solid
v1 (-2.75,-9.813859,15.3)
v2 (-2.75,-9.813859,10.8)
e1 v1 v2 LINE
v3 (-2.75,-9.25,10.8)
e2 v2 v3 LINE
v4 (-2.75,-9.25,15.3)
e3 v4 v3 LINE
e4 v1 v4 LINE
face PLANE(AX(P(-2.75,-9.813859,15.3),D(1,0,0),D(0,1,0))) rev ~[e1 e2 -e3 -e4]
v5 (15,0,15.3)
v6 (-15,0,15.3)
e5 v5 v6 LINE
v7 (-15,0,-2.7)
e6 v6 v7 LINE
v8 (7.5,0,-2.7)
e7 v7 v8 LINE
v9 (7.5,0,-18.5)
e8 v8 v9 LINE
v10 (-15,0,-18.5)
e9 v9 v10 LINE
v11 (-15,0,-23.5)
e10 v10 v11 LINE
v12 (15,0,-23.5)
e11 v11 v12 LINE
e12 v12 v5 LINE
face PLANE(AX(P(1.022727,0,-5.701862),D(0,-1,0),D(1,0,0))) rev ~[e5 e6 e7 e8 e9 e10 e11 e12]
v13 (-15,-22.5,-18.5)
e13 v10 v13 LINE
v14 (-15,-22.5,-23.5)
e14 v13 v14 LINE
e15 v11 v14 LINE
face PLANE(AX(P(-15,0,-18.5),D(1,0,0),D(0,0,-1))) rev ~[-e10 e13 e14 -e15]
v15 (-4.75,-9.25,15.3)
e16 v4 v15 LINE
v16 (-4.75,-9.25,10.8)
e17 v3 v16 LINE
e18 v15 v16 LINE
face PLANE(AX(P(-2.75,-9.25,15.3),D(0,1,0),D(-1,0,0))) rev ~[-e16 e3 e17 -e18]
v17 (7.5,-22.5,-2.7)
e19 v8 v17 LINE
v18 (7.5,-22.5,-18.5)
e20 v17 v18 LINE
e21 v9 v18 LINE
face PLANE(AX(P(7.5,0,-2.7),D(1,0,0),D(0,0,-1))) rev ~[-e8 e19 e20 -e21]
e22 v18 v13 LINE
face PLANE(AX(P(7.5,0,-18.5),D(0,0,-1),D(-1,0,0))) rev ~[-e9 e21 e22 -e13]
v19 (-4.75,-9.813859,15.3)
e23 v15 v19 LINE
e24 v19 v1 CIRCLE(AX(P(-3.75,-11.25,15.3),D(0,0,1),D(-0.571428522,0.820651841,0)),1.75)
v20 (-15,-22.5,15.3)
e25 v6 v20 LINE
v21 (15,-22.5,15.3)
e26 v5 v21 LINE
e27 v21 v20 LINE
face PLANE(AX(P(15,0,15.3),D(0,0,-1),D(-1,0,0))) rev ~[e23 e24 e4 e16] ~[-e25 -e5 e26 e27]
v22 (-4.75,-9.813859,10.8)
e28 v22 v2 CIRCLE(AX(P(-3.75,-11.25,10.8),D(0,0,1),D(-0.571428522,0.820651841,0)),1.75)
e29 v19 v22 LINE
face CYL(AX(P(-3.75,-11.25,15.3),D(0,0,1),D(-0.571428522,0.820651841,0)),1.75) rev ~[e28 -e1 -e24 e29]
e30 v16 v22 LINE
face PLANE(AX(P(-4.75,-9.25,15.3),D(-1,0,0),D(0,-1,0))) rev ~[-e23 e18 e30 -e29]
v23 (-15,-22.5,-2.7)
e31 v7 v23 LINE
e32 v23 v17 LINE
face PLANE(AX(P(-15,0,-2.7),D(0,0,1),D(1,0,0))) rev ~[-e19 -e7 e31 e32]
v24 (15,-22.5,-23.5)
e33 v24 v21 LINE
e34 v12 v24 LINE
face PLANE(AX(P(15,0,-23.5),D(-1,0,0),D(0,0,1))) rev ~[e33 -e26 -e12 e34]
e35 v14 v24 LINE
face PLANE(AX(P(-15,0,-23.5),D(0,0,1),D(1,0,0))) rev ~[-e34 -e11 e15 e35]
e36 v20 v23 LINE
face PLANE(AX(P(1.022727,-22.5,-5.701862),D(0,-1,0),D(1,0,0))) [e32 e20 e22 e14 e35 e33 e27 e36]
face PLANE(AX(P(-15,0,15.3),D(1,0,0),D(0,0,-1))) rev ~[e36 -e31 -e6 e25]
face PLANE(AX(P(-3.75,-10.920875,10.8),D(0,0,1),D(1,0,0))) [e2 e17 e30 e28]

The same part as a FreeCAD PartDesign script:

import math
import FreeCAD as App
import Part
import Sketcher

V = App.Vector

doc = App.newDocument("Part")
body = doc.addObject("PartDesign::Body", "Body")

sketch1 = body.newObject("Sketcher::SketchObject", "Sketch")
sketch1.AttachmentSupport = (doc.getObject("XZ_Plane"), [""])
sketch1.MapMode = "FlatFace"
sketch1.addGeometry([
    Part.LineSegment(V(15, 15, 0), V(-15, 15, 0)),
    Part.LineSegment(V(-15, 15, 0), V(-15, -3, 0)),
    Part.LineSegment(V(-15, -3, 0), V(8, -3, 0)),
    Part.LineSegment(V(8, -3, 0), V(8, -18, 0)),
    Part.LineSegment(V(8, -18, 0), V(-15, -18, 0)),
    Part.LineSegment(V(-15, -18, 0), V(-15, -24, 0)),
    Part.LineSegment(V(-15, -24, 0), V(15, -24, 0)),
    Part.LineSegment(V(15, -24, 0), V(15, 15, 0)),
], False)
sketch1.addConstraint([
    Sketcher.Constraint("Coincident", 0, 2, 1, 1),
    Sketcher.Constraint("Coincident", 1, 2, 2, 1),
    Sketcher.Constraint("Coincident", 2, 2, 3, 1),
    Sketcher.Constraint("Coincident", 3, 2, 4, 1),
    Sketcher.Constraint("Coincident", 4, 2, 5, 1),
    Sketcher.Constraint("Coincident", 5, 2, 6, 1),
    Sketcher.Constraint("Coincident", 6, 2, 7, 1),
    Sketcher.Constraint("Coincident", 7, 2, 0, 1),
    Sketcher.Constraint("Horizontal", 0),
    Sketcher.Constraint("Vertical", 1),
    Sketcher.Constraint("Horizontal", 2),
    Sketcher.Constraint("Vertical", 3),
    Sketcher.Constraint("Horizontal", 4),
    Sketcher.Constraint("Vertical", 5),
    Sketcher.Constraint("Horizontal", 6),
    Sketcher.Constraint("Vertical", 7),
    Sketcher.Constraint("Vertical", 1, 2, 4, 2),
    Sketcher.Constraint("DistanceX", 0, 2, 0, 1, 30.0),
    Sketcher.Constraint("DistanceY", 1, 2, 1, 1, 18.0),
    Sketcher.Constraint("DistanceY", 5, 2, 5, 1, 5.0),
    Sketcher.Constraint("DistanceX", 2, 1, 2, 2, 22.5),
    Sketcher.Constraint("DistanceY", 3, 2, 3, 1, 15.8),
    Sketcher.Constraint("DistanceX", 0, 2, -1, 1, 15.0),
    Sketcher.Constraint("DistanceY", -1, 1, 0, 2, 15.3),
])
pad1 = body.newObject("PartDesign::Pad", "Pad")
pad1.Profile = sketch1
pad1.Length = 22.5

sketch2 = body.newObject("Sketcher::SketchObject", "Sketch001")
sketch2.AttachmentSupport = (doc.getObject("XY_Plane"), [""])
sketch2.MapMode = "FlatFace"
sketch2.AttachmentOffset = App.Placement(V(0, 0, 15.3), App.Rotation())
sketch2.addGeometry([
    Part.LineSegment(V(-4.8, -9.2, 0), V(-4.8, -9.8, 0)),
    Part.ArcOfCircle(Part.Circle(V(-3.8, -11.2, 0), V(0, 0, 1), 1.8), math.radians(125), math.radians(415)),
    Part.LineSegment(V(-2.8, -9.8, 0), V(-2.8, -9.2, 0)),
    Part.LineSegment(V(-2.8, -9.2, 0), V(-4.8, -9.2, 0)),
], False)
sketch2.addConstraint([
    Sketcher.Constraint("Coincident", 0, 2, 1, 1),
    Sketcher.Constraint("Coincident", 1, 2, 2, 1),
    Sketcher.Constraint("Coincident", 2, 2, 3, 1),
    Sketcher.Constraint("Coincident", 3, 2, 0, 1),
    Sketcher.Constraint("Vertical", 0),
    Sketcher.Constraint("Vertical", 2),
    Sketcher.Constraint("Horizontal", 3),
    Sketcher.Constraint("Horizontal", 0, 2, 1, 2),
    Sketcher.Constraint("DistanceX", 3, 2, 3, 1, 2.0),
    Sketcher.Constraint("Radius", 1, 1.75),
    Sketcher.Constraint("DistanceY", 1, 3, 2, 2, 2.0),
    Sketcher.Constraint("DistanceX", 1, 3, -1, 1, 3.75),
    Sketcher.Constraint("DistanceY", 1, 3, -1, 1, 11.25),
])
pocket1 = body.newObject("PartDesign::Pocket", "Pocket")
pocket1.Profile = sketch2
pocket1.Length = 4.5

doc.recompute()
